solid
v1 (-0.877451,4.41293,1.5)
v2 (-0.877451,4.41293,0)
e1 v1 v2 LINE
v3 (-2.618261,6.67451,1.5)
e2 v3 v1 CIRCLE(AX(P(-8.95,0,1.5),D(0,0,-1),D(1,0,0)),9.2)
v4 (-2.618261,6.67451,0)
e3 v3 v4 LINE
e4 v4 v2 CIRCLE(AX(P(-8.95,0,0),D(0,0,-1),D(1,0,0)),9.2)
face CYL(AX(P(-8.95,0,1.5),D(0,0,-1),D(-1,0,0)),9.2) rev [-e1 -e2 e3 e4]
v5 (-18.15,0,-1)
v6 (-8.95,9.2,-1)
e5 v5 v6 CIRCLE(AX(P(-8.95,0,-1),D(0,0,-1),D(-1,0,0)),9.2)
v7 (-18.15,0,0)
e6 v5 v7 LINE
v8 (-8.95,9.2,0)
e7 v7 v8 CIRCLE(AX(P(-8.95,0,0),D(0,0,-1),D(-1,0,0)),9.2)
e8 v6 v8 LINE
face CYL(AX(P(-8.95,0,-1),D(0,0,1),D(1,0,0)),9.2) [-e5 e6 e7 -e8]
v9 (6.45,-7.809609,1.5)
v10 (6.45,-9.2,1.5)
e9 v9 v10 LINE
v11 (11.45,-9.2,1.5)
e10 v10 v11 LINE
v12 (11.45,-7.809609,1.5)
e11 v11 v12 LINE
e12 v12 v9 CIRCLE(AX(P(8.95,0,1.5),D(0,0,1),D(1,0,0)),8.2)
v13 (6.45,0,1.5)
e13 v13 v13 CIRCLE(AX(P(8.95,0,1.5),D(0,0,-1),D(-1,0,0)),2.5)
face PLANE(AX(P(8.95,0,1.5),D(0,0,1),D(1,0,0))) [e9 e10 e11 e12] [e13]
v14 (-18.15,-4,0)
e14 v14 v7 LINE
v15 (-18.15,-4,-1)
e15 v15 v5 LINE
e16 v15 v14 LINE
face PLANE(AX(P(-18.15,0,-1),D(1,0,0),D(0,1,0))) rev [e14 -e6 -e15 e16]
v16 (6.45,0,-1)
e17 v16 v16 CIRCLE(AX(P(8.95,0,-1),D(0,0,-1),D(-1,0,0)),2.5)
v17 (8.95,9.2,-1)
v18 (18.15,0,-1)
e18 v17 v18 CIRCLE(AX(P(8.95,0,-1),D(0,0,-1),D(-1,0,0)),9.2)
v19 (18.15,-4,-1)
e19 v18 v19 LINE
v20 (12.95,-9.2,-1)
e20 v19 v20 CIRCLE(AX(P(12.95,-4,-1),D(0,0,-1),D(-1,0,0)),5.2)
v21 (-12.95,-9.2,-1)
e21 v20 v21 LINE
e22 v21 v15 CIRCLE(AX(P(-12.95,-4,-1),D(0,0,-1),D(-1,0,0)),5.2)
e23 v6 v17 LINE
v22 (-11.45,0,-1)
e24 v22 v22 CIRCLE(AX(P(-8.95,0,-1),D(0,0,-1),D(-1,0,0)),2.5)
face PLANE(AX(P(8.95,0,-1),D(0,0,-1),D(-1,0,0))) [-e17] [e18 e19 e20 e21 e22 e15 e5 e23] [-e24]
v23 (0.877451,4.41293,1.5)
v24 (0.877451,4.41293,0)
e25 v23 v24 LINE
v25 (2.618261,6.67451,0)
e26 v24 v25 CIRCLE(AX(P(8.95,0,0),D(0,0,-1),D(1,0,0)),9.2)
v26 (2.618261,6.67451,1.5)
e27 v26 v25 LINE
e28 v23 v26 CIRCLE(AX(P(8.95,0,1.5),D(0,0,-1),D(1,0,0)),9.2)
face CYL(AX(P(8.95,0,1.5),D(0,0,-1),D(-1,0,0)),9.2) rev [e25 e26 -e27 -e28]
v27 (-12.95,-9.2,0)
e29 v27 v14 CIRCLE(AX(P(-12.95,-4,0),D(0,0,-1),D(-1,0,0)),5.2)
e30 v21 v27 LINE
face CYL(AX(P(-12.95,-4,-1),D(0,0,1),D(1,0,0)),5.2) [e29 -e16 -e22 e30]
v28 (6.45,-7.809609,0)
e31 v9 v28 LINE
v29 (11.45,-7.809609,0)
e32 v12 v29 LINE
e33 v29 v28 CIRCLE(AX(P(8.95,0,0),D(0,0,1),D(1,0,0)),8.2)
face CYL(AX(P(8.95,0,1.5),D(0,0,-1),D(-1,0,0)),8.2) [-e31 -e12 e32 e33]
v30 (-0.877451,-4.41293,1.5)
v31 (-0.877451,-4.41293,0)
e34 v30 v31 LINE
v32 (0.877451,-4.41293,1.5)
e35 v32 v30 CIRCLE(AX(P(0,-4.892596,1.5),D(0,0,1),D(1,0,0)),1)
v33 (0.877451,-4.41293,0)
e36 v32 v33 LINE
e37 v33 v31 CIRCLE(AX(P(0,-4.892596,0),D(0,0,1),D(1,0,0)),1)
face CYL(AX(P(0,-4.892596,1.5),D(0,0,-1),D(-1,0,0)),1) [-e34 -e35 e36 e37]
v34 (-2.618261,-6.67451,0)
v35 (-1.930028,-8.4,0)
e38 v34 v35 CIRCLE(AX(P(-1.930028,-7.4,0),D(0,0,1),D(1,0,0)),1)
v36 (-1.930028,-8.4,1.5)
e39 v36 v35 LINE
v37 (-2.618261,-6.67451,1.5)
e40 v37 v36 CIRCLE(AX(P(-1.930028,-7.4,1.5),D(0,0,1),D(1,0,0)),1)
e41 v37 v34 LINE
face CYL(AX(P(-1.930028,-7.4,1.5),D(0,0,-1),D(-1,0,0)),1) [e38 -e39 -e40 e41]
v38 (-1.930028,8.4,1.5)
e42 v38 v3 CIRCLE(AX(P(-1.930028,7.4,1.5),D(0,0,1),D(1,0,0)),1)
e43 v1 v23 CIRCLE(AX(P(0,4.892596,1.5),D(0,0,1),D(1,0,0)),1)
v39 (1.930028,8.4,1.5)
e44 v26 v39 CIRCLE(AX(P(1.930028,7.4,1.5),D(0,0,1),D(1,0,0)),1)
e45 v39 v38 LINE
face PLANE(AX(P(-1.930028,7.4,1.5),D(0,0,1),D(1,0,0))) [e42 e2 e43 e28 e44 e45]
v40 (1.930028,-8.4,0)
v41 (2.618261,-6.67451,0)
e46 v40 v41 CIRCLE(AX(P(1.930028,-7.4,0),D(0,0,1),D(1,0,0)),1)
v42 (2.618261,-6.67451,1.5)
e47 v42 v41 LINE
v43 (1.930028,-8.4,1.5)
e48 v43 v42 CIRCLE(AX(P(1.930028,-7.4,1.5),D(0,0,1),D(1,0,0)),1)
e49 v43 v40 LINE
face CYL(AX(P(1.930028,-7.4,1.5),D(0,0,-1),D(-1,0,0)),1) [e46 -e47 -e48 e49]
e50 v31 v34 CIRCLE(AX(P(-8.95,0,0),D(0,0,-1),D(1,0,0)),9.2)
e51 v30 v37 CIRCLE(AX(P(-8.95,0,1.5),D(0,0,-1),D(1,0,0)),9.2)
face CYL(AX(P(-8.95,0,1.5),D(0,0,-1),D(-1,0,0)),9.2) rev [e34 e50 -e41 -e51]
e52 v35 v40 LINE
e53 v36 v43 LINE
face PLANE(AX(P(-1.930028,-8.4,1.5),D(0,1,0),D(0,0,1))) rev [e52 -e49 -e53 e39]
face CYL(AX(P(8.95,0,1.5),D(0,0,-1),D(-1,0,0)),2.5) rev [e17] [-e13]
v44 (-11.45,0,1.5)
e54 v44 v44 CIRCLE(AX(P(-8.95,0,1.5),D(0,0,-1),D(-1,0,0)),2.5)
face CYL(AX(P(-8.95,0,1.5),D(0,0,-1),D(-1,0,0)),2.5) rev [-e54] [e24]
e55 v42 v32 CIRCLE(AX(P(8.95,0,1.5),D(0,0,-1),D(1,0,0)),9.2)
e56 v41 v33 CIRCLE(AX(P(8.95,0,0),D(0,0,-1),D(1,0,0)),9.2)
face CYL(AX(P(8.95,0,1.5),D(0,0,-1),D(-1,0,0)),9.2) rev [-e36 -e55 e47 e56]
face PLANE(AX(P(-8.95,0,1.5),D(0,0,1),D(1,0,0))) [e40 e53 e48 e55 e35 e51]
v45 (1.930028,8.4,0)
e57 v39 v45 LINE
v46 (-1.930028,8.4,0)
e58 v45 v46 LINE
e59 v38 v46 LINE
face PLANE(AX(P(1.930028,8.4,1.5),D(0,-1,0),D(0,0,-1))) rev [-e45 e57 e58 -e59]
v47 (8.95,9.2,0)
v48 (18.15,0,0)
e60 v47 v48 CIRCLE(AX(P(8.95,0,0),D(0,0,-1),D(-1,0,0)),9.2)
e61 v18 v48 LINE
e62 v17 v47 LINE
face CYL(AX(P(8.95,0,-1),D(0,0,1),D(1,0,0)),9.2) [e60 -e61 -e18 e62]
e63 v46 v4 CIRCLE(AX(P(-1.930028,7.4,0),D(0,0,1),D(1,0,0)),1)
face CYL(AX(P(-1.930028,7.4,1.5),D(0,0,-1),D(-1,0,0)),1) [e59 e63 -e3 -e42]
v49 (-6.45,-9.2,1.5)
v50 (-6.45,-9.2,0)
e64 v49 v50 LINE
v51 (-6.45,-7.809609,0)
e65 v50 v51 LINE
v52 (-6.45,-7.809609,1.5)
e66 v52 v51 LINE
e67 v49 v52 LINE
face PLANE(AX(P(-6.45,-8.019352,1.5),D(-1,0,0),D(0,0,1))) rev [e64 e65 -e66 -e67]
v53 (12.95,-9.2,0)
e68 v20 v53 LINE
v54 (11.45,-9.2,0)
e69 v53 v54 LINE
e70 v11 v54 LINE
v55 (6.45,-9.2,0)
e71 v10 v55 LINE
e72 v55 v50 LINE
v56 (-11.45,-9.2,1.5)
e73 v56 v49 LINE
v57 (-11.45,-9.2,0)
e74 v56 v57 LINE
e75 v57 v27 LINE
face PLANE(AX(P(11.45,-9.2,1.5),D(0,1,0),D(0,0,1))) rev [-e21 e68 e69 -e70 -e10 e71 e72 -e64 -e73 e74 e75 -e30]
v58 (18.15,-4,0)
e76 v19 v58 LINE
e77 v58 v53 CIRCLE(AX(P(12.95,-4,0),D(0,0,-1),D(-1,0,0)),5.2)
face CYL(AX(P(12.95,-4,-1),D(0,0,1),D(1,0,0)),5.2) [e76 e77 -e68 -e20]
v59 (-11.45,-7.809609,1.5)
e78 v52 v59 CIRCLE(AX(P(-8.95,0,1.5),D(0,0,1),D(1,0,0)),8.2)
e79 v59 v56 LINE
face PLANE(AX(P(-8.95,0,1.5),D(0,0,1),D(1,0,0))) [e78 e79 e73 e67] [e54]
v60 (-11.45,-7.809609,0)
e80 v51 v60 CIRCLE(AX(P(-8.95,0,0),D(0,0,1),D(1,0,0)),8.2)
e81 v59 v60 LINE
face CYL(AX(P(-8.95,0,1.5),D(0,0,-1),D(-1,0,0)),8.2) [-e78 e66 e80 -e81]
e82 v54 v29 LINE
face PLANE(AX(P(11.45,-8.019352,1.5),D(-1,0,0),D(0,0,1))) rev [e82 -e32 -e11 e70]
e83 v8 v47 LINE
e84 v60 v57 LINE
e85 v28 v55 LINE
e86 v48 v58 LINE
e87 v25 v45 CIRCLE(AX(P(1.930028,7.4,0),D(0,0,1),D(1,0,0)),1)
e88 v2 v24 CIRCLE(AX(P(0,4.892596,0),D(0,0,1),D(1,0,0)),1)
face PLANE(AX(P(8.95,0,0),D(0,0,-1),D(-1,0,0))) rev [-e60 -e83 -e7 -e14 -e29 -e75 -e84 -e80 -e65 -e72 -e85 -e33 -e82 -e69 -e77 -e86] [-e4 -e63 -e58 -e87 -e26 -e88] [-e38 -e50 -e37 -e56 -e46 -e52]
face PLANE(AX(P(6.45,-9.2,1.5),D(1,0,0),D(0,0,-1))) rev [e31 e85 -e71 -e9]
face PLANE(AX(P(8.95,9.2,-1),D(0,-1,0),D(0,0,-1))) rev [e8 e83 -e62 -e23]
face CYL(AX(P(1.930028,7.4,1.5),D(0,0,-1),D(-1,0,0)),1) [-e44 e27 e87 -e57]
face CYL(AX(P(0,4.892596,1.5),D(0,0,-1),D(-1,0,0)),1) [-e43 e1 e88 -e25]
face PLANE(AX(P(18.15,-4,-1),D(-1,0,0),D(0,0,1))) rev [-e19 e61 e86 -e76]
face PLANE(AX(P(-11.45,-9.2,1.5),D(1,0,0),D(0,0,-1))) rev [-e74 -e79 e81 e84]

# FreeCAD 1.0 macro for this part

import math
import FreeCAD as App
import Part
import Sketcher
from FreeCAD import Vector

doc = App.newDocument("Part")
body = doc.addObject("PartDesign::Body", "Body")

# Sketch on XY plane
sketch1 = doc.addObject("Sketcher::SketchObject", "Sketch")
body.addObject(sketch1)
sketch1.AttachmentSupport = (doc.XY_Plane, [""])
sketch1.MapMode = "FlatFace"
sketch1.addGeometry([
    Part.LineSegment(Vector(-1.9, -8.4, 0), Vector(1.9, -8.4, 0)),  # 0
    Part.ArcOfCircle(Part.Circle(Vector(1.9, -7.4, 0), Vector(0, 0, 1), 1), math.radians(-90), math.radians(47)),  # 1
    Part.ArcOfCircle(Part.Circle(Vector(9, 0, 0), Vector(0, 0, 1), 9.2), math.radians(-151.34), math.radians(-133.49)),  # 2
    Part.ArcOfCircle(Part.Circle(Vector(0, -4.9, 0), Vector(0, 0, 1), 1), math.radians(29), math.radians(151)),  # 3
    Part.ArcOfCircle(Part.Circle(Vector(-9, 0, 0), Vector(0, 0, 1), 9.2), math.radians(-46.51), math.radians(-28.66)),  # 4
    Part.ArcOfCircle(Part.Circle(Vector(-1.9, -7.4, 0), Vector(0, 0, 1), 1), math.radians(133), math.radians(270)),  # 5
], False)
sketch1.addConstraint([
    Sketcher.Constraint("Tangent", 0, 2, 1, 1),
    Sketcher.Constraint("Tangent", 1, 2, 2, 2),
    Sketcher.Constraint("Tangent", 2, 1, 3, 1),
    Sketcher.Constraint("Tangent", 3, 2, 4, 2),
    Sketcher.Constraint("Tangent", 4, 1, 5, 1),
    Sketcher.Constraint("Tangent", 5, 2, 0, 1),
    Sketcher.Constraint("Horizontal", 0),
    Sketcher.Constraint("Equal", 1, 3),
    Sketcher.Constraint("Equal", 2, 4),
    Sketcher.Constraint("Equal", 3, 5),
    Sketcher.Constraint("Symmetric", 2, 3, 4, 3, -1, 1),
    Sketcher.Constraint("PointOnObject", 2, 3, -1),
    Sketcher.Constraint("Radius", 1, 1.0),
    Sketcher.Constraint("Radius", 2, 9.2),
    Sketcher.Constraint("DistanceY", 1, 3, -1, 1, 7.4),
    Sketcher.Constraint("DistanceX", 4, 3, 2, 3, 17.9),
])
pad1 = doc.addObject("PartDesign::Pad", "Pad")
body.addObject(pad1)
pad1.Profile = sketch1
pad1.Length = 1.5
body2 = doc.addObject("PartDesign::Body", "Body001")

# Sketch on XY plane
sketch2 = doc.addObject("Sketcher::SketchObject", "Sketch001")
body2.addObject(sketch2)
sketch2.AttachmentSupport = (doc.getObject("XY_Plane001"), [""])
sketch2.MapMode = "FlatFace"
sketch2.addGeometry([
    Part.LineSegment(Vector(1.9, 8.4, 0), Vector(-1.9, 8.4, 0)),  # 0
    Part.ArcOfCircle(Part.Circle(Vector(-1.9, 7.4, 0), Vector(0, 0, 1), 1), math.radians(90), math.radians(227)),  # 1
    Part.ArcOfCircle(Part.Circle(Vector(-9, 0, 0), Vector(0, 0, 1), 9.2), math.radians(28.66), math.radians(46.51)),  # 2
    Part.ArcOfCircle(Part.Circle(Vector(0, 4.9, 0), Vector(0, 0, 1), 1), math.radians(-151), math.radians(-29)),  # 3
    Part.ArcOfCircle(Part.Circle(Vector(9, 0, 0), Vector(0, 0, 1), 9.2), math.radians(133.49), math.radians(151.34)),  # 4
    Part.ArcOfCircle(Part.Circle(Vector(1.9, 7.4, 0), Vector(0, 0, 1), 1), math.radians(-47), math.radians(90)),  # 5
], False)
sketch2.addConstraint([
    Sketcher.Constraint("Tangent", 0, 2, 1, 1),
    Sketcher.Constraint("Tangent", 1, 2, 2, 2),
    Sketcher.Constraint("Tangent", 2, 1, 3, 1),
    Sketcher.Constraint("Tangent", 3, 2, 4, 2),
    Sketcher.Constraint("Tangent", 4, 1, 5, 1),
    Sketcher.Constraint("Tangent", 5, 2, 0, 1),
    Sketcher.Constraint("Horizontal", 0),
    Sketcher.Constraint("Equal", 1, 3),
    Sketcher.Constraint("Equal", 2, 4),
    Sketcher.Constraint("Equal", 3, 5),
    Sketcher.Constraint("Symmetric", 2, 3, 4, 3, -1, 1),
    Sketcher.Constraint("PointOnObject", 2, 3, -1),
    Sketcher.Constraint("Radius", 1, 1.0),
    Sketcher.Constraint("Radius", 2, 9.2),
    Sketcher.Constraint("DistanceY", -1, 1, 1, 3, 7.4),
    Sketcher.Constraint("DistanceX", 2, 3, 4, 3, 17.9),
])
pad2 = doc.addObject("PartDesign::Pad", "Pad001")
body2.addObject(pad2)
pad2.Profile = sketch2
pad2.Length = 1.5
body3 = doc.addObject("PartDesign::Body", "Body002")

# Sketch on XY plane
sketch3 = doc.addObject("Sketcher::SketchObject", "Sketch002")
body3.addObject(sketch3)
sketch3.AttachmentSupport = (doc.getObject("XY_Plane002"), [""])
sketch3.MapMode = "FlatFace"
sketch3.addGeometry([
    Part.ArcOfCircle(Part.Circle(Vector(-8.9, 0, 0), Vector(0, 0, 1), 8.2), math.radians(-72), math.radians(252)),
    Part.LineSegment(Vector(-11.4, -7.8, 0), Vector(-11.4, -9.2, 0)),
    Part.LineSegment(Vector(-11.4, -9.2, 0), Vector(-6.5, -9.2, 0)),
    Part.LineSegment(Vector(-6.5, -9.2, 0), Vector(-6.5, -7.8, 0)),
], False)
sketch3.addConstraint([
    Sketcher.Constraint("Coincident", 0, 2, 1, 1),
    Sketcher.Constraint("Coincident", 1, 2, 2, 1),
    Sketcher.Constraint("Coincident", 2, 2, 3, 1),
    Sketcher.Constraint("Coincident", 3, 2, 0, 1),
    Sketcher.Constraint("Vertical", 1),
    Sketcher.Constraint("Horizontal", 2),
    Sketcher.Constraint("Vertical", 3),
    Sketcher.Constraint("PointOnObject", 0, 3, -1),
    Sketcher.Constraint("Horizontal", 0, 2, 3, 2),
    Sketcher.Constraint("Radius", 0, 8.2),
    Sketcher.Constraint("DistanceX", 2, 1, 2, 2, 5.0),
    Sketcher.Constraint("DistanceY", 1, 2, -1, 1, 9.2),
    Sketcher.Constraint("DistanceX", 0, 3, -1, 1, 8.95),
])
pad3 = doc.addObject("PartDesign::Pad", "Pad002")
body3.addObject(pad3)
pad3.Profile = sketch3
pad3.Length = 1.5
body4 = doc.addObject("PartDesign::Body", "Body003")

# Sketch on XY plane
sketch4 = doc.addObject("Sketcher::SketchObject", "Sketch003")
body4.addObject(sketch4)
sketch4.AttachmentSupport = (doc.getObject("XY_Plane003"), [""])
sketch4.MapMode = "FlatFace"
sketch4.addGeometry([
    Part.ArcOfCircle(Part.Circle(Vector(8.9, 0, 0), Vector(0, 0, 1), 8.2), math.radians(-72), math.radians(252)),
    Part.LineSegment(Vector(6.5, -7.8, 0), Vector(6.5, -9.2, 0)),
    Part.LineSegment(Vector(6.5, -9.2, 0), Vector(11.4, -9.2, 0)),
    Part.LineSegment(Vector(11.4, -9.2, 0), Vector(11.4, -7.8, 0)),
], False)
sketch4.addConstraint([
    Sketcher.Constraint("Coincident", 0, 2, 1, 1),
    Sketcher.Constraint("Coincident", 1, 2, 2, 1),
    Sketcher.Constraint("Coincident", 2, 2, 3, 1),
    Sketcher.Constraint("Coincident", 3, 2, 0, 1),
    Sketcher.Constraint("Vertical", 1),
    Sketcher.Constraint("Horizontal", 2),
    Sketcher.Constraint("Vertical", 3),
    Sketcher.Constraint("PointOnObject", 0, 3, -1),
    Sketcher.Constraint("Horizontal", 0, 2, 3, 2),
    Sketcher.Constraint("Radius", 0, 8.2),
    Sketcher.Constraint("DistanceX", 2, 1, 2, 2, 5.0),
    Sketcher.Constraint("DistanceY", 1, 2, -1, 1, 9.2),
    Sketcher.Constraint("DistanceX", -1, 1, 0, 3, 8.95),
])
pad4 = doc.addObject("PartDesign::Pad", "Pad003")
body4.addObject(pad4)
pad4.Profile = sketch4
pad4.Length = 1.5
body.AllowCompound = True
doc.recompute()

boolean = doc.addObject("PartDesign::Boolean", "Boolean")
body.addObject(boolean)
boolean.Type = "Fuse"
boolean.addObjects([body2])
doc.recompute()

boolean2 = doc.addObject("PartDesign::Boolean", "Boolean001")
body.addObject(boolean2)
boolean2.Type = "Fuse"
boolean2.addObjects([body3])
doc.recompute()

boolean3 = doc.addObject("PartDesign::Boolean", "Boolean002")
body.addObject(boolean3)
boolean3.Type = "Fuse"
boolean3.addObjects([body4])

# Sketch on XY plane
sketch5 = doc.addObject("Sketcher::SketchObject", "Sketch004")
body.addObject(sketch5)
sketch5.AttachmentSupport = (doc.XY_Plane, [""])
sketch5.MapMode = "FlatFace"
sketch5.AttachmentOffset = App.Placement(Vector(0, 0, -1), App.Rotation())
sketch5.addGeometry([
    Part.LineSegment(Vector(-8.9, 9.2, 0), Vector(8.9, 9.2, 0)),  # 0
    Part.ArcOfCircle(Part.Circle(Vector(8.9, 0, 0), Vector(0, 0, 1), 9.2), math.radians(0), math.radians(90)),  # 1
    Part.LineSegment(Vector(18.1, 0, 0), Vector(18.1, -4, 0)),  # 2
    Part.ArcOfCircle(Part.Circle(Vector(12.9, -4, 0), Vector(0, 0, 1), 5.2), math.radians(-90), math.radians(0)),  # 3
    Part.LineSegment(Vector(12.9, -9.2, 0), Vector(-12.9, -9.2, 0)),  # 4
    Part.ArcOfCircle(Part.Circle(Vector(-12.9, -4, 0), Vector(0, 0, 1), 5.2), math.radians(-180), math.radians(-90)),  # 5
    Part.LineSegment(Vector(-18.1, -4, 0), Vector(-18.1, 0, 0)),  # 6
    Part.ArcOfCircle(Part.Circle(Vector(-8.9, 0, 0), Vector(0, 0, 1), 9.2), math.radians(90), math.radians(180)),  # 7
], False)
sketch5.addConstraint([
    Sketcher.Constraint("Tangent", 0, 2, 1, 2),
    Sketcher.Constraint("Tangent", 1, 1, 2, 1),
    Sketcher.Constraint("Tangent", 2, 2, 3, 2),
    Sketcher.Constraint("Tangent", 3, 1, 4, 1),
    Sketcher.Constraint("Tangent", 4, 2, 5, 2),
    Sketcher.Constraint("Tangent", 5, 1, 6, 1),
    Sketcher.Constraint("Tangent", 6, 2, 7, 2),
    Sketcher.Constraint("Tangent", 7, 1, 0, 1),
    Sketcher.Constraint("Horizontal", 0),
    Sketcher.Constraint("Vertical", 2),
    Sketcher.Constraint("Horizontal", 4),
    Sketcher.Constraint("Vertical", 6),
    Sketcher.Constraint("Equal", 3, 5),
    Sketcher.Constraint("Equal", 1, 7),
    Sketcher.Constraint("Symmetric", 1, 3, 7, 3, -1, 1),
    Sketcher.Constraint("Radius", 1, 9.2),
    Sketcher.Constraint("Radius", 3, 5.2),
    Sketcher.Constraint("DistanceY", 2, 2, 2, 1, 4.0),
    Sketcher.Constraint("DistanceX", 0, 1, 0, 2, 17.9),
])
pad5 = doc.addObject("PartDesign::Pad", "Pad004")
body.addObject(pad5)
pad5.Profile = sketch5
pad5.Length = 1

# Sketch on XY plane
sketch6 = doc.addObject("Sketcher::SketchObject", "Sketch005")
body.addObject(sketch6)
sketch6.AttachmentSupport = (doc.XY_Plane, [""])
sketch6.MapMode = "FlatFace"
sketch6.AttachmentOffset = App.Placement(Vector(0, 0, -1), App.Rotation())
sketch6.addGeometry([
    Part.Circle(Vector(8.9, 0, 0), Vector(0, 0, 1), 2.5),
    Part.Circle(Vector(-8.9, 0, 0), Vector(0, 0, 1), 2.5),
], False)
sketch6.addConstraint([
    Sketcher.Constraint("Equal", 0, 1),
    Sketcher.Constraint("Symmetric", 0, 3, 1, 3, -1, 1),
    Sketcher.Constraint("PointOnObject", 0, 3, -1),
    Sketcher.Constraint("Diameter", 0, 5.0),
    Sketcher.Constraint("DistanceX", 1, 3, 0, 3, 17.9),
])
pocket1 = doc.addObject("PartDesign::Pocket", "Pocket")
body.addObject(pocket1)
pocket1.Profile = sketch6
pocket1.Type = "ThroughAll"
pocket1.Reversed = True

doc.recompute()
